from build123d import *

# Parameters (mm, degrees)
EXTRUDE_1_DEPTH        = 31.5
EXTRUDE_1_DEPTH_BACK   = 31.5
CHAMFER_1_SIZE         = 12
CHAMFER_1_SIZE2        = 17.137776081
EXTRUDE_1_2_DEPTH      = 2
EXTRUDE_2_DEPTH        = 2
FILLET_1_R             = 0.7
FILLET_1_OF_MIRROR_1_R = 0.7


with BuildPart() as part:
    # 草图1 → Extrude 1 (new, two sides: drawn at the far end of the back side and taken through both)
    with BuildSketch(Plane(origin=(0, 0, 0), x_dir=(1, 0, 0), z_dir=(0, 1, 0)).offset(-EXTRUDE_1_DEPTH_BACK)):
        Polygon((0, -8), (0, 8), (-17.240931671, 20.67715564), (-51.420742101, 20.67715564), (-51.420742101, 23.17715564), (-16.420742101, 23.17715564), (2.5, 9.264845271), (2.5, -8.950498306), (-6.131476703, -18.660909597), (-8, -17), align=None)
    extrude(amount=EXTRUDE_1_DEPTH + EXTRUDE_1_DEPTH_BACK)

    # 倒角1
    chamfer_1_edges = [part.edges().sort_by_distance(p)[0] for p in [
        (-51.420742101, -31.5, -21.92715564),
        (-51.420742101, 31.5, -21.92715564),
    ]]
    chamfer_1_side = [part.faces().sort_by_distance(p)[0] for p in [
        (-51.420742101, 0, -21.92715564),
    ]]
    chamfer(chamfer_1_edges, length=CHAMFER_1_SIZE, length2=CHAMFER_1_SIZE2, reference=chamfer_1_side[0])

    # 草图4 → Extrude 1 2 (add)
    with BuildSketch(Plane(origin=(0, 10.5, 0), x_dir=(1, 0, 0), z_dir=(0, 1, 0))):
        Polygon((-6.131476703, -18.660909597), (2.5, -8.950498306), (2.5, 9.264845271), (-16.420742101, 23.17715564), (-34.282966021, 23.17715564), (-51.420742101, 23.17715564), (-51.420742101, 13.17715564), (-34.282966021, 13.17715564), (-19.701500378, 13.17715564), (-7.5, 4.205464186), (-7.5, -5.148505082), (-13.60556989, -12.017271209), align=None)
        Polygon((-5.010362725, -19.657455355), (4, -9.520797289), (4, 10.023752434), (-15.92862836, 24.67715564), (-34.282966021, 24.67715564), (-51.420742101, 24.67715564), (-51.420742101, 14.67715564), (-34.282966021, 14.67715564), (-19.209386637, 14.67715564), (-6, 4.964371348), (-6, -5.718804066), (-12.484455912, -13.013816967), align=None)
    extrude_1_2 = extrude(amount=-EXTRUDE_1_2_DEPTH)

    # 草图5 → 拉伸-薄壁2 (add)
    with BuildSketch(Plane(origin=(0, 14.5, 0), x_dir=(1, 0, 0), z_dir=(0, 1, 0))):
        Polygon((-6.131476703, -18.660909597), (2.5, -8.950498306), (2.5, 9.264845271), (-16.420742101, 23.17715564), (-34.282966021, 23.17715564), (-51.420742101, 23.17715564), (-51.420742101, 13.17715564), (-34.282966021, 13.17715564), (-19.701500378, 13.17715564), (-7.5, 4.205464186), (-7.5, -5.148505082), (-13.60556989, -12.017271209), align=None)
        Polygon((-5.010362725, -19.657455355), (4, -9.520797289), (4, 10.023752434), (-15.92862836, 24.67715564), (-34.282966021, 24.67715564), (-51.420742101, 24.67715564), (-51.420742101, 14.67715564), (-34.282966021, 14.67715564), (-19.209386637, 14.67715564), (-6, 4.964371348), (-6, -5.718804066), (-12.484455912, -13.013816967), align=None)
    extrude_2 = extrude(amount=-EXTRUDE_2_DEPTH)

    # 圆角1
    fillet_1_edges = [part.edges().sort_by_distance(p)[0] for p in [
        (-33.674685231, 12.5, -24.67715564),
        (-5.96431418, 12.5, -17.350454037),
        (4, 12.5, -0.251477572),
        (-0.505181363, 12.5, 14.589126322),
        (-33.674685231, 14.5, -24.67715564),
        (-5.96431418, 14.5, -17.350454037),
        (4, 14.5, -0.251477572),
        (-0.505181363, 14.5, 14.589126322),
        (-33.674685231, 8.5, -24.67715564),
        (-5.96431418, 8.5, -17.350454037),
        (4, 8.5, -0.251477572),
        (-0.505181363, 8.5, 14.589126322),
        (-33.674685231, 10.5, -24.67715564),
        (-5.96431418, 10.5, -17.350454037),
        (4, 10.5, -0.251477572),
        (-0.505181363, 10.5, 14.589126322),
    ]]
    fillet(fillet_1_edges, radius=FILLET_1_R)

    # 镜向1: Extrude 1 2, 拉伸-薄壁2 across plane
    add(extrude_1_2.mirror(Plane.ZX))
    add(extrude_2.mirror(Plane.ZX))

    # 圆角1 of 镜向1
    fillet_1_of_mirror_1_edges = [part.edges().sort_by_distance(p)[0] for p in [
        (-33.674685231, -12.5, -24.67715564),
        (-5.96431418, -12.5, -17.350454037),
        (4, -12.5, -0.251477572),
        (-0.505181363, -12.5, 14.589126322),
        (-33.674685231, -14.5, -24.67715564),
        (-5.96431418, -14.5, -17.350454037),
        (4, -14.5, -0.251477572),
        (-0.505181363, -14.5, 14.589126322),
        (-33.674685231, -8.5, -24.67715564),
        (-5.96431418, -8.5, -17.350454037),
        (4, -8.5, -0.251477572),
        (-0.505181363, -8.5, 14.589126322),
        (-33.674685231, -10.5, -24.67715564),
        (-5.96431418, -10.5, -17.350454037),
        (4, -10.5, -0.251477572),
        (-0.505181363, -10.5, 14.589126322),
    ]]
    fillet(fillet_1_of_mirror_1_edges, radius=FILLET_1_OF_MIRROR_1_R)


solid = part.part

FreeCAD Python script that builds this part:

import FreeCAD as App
import Part
import Sketcher
Q = App.Units.Quantity


def edges_at(feature, points):
    """Names of the edges that pass closest to the given points."""
    edges = feature.Shape.Edges
    near = lambda p: min(range(len(edges)), key=lambda i: edges[i].distToShape(Part.Vertex(*p))[0])
    return sorted({f"Edge{near(p) + 1}" for p in points})


def add_polygon(sketch, points):
    """Adds a closed chain of lines whose ends are joined by coincident constraints."""
    first, n = sketch.GeometryCount, len(points)
    for a, b in zip(points, points[1:] + points[:1]):
        sketch.addGeometry(Part.LineSegment(App.Vector(*a, 0), App.Vector(*b, 0)), False)
    for i in range(n):
        sketch.addConstraint(Sketcher.Constraint("Coincident", first + i, 2, first + (i + 1) % n, 1))

doc = App.newDocument("Part")
body = doc.addObject("PartDesign::Body", "Body")

sketch1 = body.newObject("Sketcher::SketchObject", "Sketch")
sketch1.AttachmentSupport = (doc.getObject("XZ_Plane"), [""])
sketch1.MapMode = "FlatFace"
add_polygon(sketch1, [(0, -8), (0, 8), (-8, 17), (-6.1, 18.7), (2.5, 9), (2.5, -9.3), (-16.4, -23.2), (-51.4, -23.2), (-51.4, -20.7), (-17.2, -20.7)])
sketch1.addConstraint(Sketcher.Constraint("Vertical", 0))
sketch1.addConstraint(Sketcher.Constraint("Vertical", 4))
sketch1.addConstraint(Sketcher.Constraint("Horizontal", 6))
sketch1.addConstraint(Sketcher.Constraint("Vertical", 7))
sketch1.addConstraint(Sketcher.Constraint("Horizontal", 8))
sketch1.addConstraint(Sketcher.Constraint("Symmetric", 0, 2, 9, 2, -1, 1))
sketch1.addConstraint(Sketcher.Constraint("Perpendicular", 1, 2))
sketch1.addConstraint(Sketcher.Constraint("Perpendicular", 2, 3))
sketch1.addConstraint(Sketcher.Constraint("Parallel", 5, 9))
sketch1.addConstraint(Sketcher.Constraint("DistanceX", 6, 2, 6, 1, Q("35 mm")))
sketch1.addConstraint(Sketcher.Constraint("DistanceY", 0, 1, 0, 2, Q("16 mm")))
sketch1.addConstraint(Sketcher.Constraint("DistanceY", 7, 1, 7, 2, Q("2.5 mm")))
sketch1.addConstraint(Sketcher.Constraint("DistanceX", 1, 2, -1, 1, Q("8 mm")))
sketch1.addConstraint(Sketcher.Constraint("DistanceY", -1, 1, 1, 2, Q("17 mm")))
sketch1.addConstraint(Sketcher.Constraint("Distance", 2, Q("2.5 mm")))
sketch1.addConstraint(Sketcher.Constraint("Distance", 9, Q("21.4 mm")))
sketch1.addConstraint(Sketcher.Constraint("DistanceX", -1, 1, 3, 2, Q("2.5 mm")))
sketch1.addConstraint(Sketcher.Constraint("DistanceX", 8, 1, 8, 2, Q("34.17981 mm")))
sketch1.addConstraint(Sketcher.Constraint("DistanceY", 4, 2, 4, 1, Q("18.215344 mm")))
pad1 = body.newObject("PartDesign::Pad", "Pad")
pad1.Profile = sketch1
pad1.Type = "TwoLengths"
pad1.Length = 31.5
pad1.Length2 = 31.5
pad1.Reversed = True
doc.recompute()

chamfer = body.newObject("PartDesign::Chamfer", "Chamfer")
chamfer.Base = (pad1, edges_at(pad1, [(-51.421, -31.5, -21.927), (-51.421, 31.5, -21.927)]))
chamfer.ChamferType = "Two distances"
chamfer.Size = 12
chamfer.Size2 = 17.137776

sketch2 = body.newObject("Sketcher::SketchObject", "Sketch001")
sketch2.AttachmentSupport = (doc.getObject("XZ_Plane"), [""])
sketch2.MapMode = "FlatFace"
sketch2.AttachmentOffset = App.Placement(App.Vector(0, 0, -10.5), App.Rotation())
add_polygon(sketch2, [(-5, 20), (4, 10), (4, -10), (-16, -25), (-51, -25), (-51, -13), (-20, -13), (-8, -4), (-8, 5), (-14, 12)])
sketch2.addConstraint(Sketcher.Constraint("Vertical", 1))
sketch2.addConstraint(Sketcher.Constraint("Horizontal", 3))
sketch2.addConstraint(Sketcher.Constraint("Vertical", 4))
sketch2.addConstraint(Sketcher.Constraint("Horizontal", 5))
sketch2.addConstraint(Sketcher.Constraint("Vertical", 7))
sketch2.addConstraint(Sketcher.Constraint("Parallel", 2, 6))
sketch2.addConstraint(Sketcher.Constraint("Parallel", 0, 8))
sketch2.addConstraint(Sketcher.Constraint("Perpendicular", 8, 9))
sketch2.addConstraint(Sketcher.Constraint("DistanceY", 4, 1, 4, 2, Q("11.5 mm")))
sketch2.addConstraint(Sketcher.Constraint("DistanceX", -1, 1, 0, 2, Q("4 mm")))
sketch2.addConstraint(Sketcher.Constraint("Distance", 9, Q("11.5 mm")))
sketch2.addConstraint(Sketcher.Constraint("DistanceX", 6, 2, -1, 1, Q("7.5 mm")))
sketch2.addConstraint(Sketcher.Constraint("Distance", 8, Q("9.1901 mm")))
sketch2.addConstraint(Sketcher.Constraint("DistanceX", 5, 1, 5, 2, Q("31.719242 mm")))
sketch2.addConstraint(Sketcher.Constraint("DistanceY", 1, 2, 1, 1, Q("19.54455 mm")))
sketch2.addConstraint(Sketcher.Constraint("DistanceY", 7, 1, 7, 2, Q("9.353969 mm")))
sketch2.addConstraint(Sketcher.Constraint("DistanceX", 5, 2, -1, 1, Q("19.7015 mm")))
sketch2.addConstraint(Sketcher.Constraint("Distance", 0, Q("13.562392 mm")))
sketch2.addConstraint(Sketcher.Constraint("DistanceX", 3, 2, 3, 1, Q("35.492114 mm")))
sketch2.addConstraint(Sketcher.Constraint("DistanceY", -1, 1, 8, 2, Q("12.017271 mm")))
pad2 = body.newObject("PartDesign::Pad", "Pad001")
pad2.Profile = sketch2
pad2.Length = 2

sketch3 = body.newObject("Sketcher::SketchObject", "Sketch002")
sketch3.AttachmentSupport = (doc.getObject("XZ_Plane"), [""])
sketch3.MapMode = "FlatFace"
sketch3.AttachmentOffset = App.Placement(App.Vector(0, 0, -14.5), App.Rotation())
add_polygon(sketch3, [(-5, 20), (4, 10), (4, -10), (-16, -25), (-51, -25), (-51, -13), (-20, -13), (-8, -4), (-8, 5), (-14, 12)])
sketch3.addConstraint(Sketcher.Constraint("Vertical", 1))
sketch3.addConstraint(Sketcher.Constraint("Horizontal", 3))
sketch3.addConstraint(Sketcher.Constraint("Vertical", 4))
sketch3.addConstraint(Sketcher.Constraint("Horizontal", 5))
sketch3.addConstraint(Sketcher.Constraint("Vertical", 7))
sketch3.addConstraint(Sketcher.Constraint("Parallel", 2, 6))
sketch3.addConstraint(Sketcher.Constraint("Parallel", 0, 8))
sketch3.addConstraint(Sketcher.Constraint("Perpendicular", 8, 9))
sketch3.addConstraint(Sketcher.Constraint("DistanceY", 4, 1, 4, 2, Q("11.5 mm")))
sketch3.addConstraint(Sketcher.Constraint("DistanceX", -1, 1, 0, 2, Q("4 mm")))
sketch3.addConstraint(Sketcher.Constraint("Distance", 9, Q("11.5 mm")))
sketch3.addConstraint(Sketcher.Constraint("DistanceX", 6, 2, -1, 1, Q("7.5 mm")))
sketch3.addConstraint(Sketcher.Constraint("Distance", 8, Q("9.1901 mm")))
sketch3.addConstraint(Sketcher.Constraint("DistanceX", 5, 1, 5, 2, Q("31.719242 mm")))
sketch3.addConstraint(Sketcher.Constraint("DistanceY", 1, 2, 1, 1, Q("19.54455 mm")))
sketch3.addConstraint(Sketcher.Constraint("DistanceY", 7, 1, 7, 2, Q("9.353969 mm")))
sketch3.addConstraint(Sketcher.Constraint("DistanceX", 5, 2, -1, 1, Q("19.7015 mm")))
sketch3.addConstraint(Sketcher.Constraint("Distance", 0, Q("13.562392 mm")))
sketch3.addConstraint(Sketcher.Constraint("DistanceX", 3, 2, 3, 1, Q("35.492114 mm")))
sketch3.addConstraint(Sketcher.Constraint("DistanceY", -1, 1, 8, 2, Q("12.017271 mm")))
pad3 = body.newObject("PartDesign::Pad", "Pad002")
pad3.Profile = sketch3
pad3.Length = 2
doc.recompute()

fillet = body.newObject("PartDesign::Fillet", "Fillet")
fillet.Base = (pad3, edges_at(pad3, [
    (-33.675, 12.5, -24.677),
    (-5.964, 12.5, -17.35),
    (4, 12.5, -0.251),
    (-0.505, 12.5, 14.589),
    (-33.675, 14.5, -24.677),
    (-5.964, 14.5, -17.35),
    (4, 14.5, -0.251),
    (-0.505, 14.5, 14.589),
    (-33.675, 8.5, -24.677),
    (-5.964, 8.5, -17.35),
    (4, 8.5, -0.251),
    (-0.505, 8.5, 14.589),
    (-33.675, 10.5, -24.677),
    (-5.964, 10.5, -17.35),
    (4, 10.5, -0.251),
    (-0.505, 10.5, 14.589),
]))
fillet.Radius = 0.7
doc.recompute()

mirrored = body.newObject("PartDesign::Mirrored", "Mirrored")
mirrored.Originals = [pad2, pad3]
mirrored.MirrorPlane = (doc.getObject("XZ_Plane"), [""])
body.Tip = mirrored
doc.recompute()

fillet2 = body.newObject("PartDesign::Fillet", "Fillet001")
fillet2.Base = (mirrored, edges_at(mirrored, [
    (-33.675, -12.5, -24.677),
    (-5.964, -12.5, -17.35),
    (4, -12.5, -0.251),
    (-0.505, -12.5, 14.589),
    (-33.675, -14.5, -24.677),
    (-5.964, -14.5, -17.35),
    (4, -14.5, -0.251),
    (-0.505, -14.5, 14.589),
    (-33.675, -8.5, -24.677),
    (-5.964, -8.5, -17.35),
    (4, -8.5, -0.251),
    (-0.505, -8.5, 14.589),
    (-33.675, -10.5, -24.677),
    (-5.964, -10.5, -17.35),
    (4, -10.5, -0.251),
    (-0.505, -10.5, 14.589),
]))
fillet2.Radius = 0.7

doc.recompute()
